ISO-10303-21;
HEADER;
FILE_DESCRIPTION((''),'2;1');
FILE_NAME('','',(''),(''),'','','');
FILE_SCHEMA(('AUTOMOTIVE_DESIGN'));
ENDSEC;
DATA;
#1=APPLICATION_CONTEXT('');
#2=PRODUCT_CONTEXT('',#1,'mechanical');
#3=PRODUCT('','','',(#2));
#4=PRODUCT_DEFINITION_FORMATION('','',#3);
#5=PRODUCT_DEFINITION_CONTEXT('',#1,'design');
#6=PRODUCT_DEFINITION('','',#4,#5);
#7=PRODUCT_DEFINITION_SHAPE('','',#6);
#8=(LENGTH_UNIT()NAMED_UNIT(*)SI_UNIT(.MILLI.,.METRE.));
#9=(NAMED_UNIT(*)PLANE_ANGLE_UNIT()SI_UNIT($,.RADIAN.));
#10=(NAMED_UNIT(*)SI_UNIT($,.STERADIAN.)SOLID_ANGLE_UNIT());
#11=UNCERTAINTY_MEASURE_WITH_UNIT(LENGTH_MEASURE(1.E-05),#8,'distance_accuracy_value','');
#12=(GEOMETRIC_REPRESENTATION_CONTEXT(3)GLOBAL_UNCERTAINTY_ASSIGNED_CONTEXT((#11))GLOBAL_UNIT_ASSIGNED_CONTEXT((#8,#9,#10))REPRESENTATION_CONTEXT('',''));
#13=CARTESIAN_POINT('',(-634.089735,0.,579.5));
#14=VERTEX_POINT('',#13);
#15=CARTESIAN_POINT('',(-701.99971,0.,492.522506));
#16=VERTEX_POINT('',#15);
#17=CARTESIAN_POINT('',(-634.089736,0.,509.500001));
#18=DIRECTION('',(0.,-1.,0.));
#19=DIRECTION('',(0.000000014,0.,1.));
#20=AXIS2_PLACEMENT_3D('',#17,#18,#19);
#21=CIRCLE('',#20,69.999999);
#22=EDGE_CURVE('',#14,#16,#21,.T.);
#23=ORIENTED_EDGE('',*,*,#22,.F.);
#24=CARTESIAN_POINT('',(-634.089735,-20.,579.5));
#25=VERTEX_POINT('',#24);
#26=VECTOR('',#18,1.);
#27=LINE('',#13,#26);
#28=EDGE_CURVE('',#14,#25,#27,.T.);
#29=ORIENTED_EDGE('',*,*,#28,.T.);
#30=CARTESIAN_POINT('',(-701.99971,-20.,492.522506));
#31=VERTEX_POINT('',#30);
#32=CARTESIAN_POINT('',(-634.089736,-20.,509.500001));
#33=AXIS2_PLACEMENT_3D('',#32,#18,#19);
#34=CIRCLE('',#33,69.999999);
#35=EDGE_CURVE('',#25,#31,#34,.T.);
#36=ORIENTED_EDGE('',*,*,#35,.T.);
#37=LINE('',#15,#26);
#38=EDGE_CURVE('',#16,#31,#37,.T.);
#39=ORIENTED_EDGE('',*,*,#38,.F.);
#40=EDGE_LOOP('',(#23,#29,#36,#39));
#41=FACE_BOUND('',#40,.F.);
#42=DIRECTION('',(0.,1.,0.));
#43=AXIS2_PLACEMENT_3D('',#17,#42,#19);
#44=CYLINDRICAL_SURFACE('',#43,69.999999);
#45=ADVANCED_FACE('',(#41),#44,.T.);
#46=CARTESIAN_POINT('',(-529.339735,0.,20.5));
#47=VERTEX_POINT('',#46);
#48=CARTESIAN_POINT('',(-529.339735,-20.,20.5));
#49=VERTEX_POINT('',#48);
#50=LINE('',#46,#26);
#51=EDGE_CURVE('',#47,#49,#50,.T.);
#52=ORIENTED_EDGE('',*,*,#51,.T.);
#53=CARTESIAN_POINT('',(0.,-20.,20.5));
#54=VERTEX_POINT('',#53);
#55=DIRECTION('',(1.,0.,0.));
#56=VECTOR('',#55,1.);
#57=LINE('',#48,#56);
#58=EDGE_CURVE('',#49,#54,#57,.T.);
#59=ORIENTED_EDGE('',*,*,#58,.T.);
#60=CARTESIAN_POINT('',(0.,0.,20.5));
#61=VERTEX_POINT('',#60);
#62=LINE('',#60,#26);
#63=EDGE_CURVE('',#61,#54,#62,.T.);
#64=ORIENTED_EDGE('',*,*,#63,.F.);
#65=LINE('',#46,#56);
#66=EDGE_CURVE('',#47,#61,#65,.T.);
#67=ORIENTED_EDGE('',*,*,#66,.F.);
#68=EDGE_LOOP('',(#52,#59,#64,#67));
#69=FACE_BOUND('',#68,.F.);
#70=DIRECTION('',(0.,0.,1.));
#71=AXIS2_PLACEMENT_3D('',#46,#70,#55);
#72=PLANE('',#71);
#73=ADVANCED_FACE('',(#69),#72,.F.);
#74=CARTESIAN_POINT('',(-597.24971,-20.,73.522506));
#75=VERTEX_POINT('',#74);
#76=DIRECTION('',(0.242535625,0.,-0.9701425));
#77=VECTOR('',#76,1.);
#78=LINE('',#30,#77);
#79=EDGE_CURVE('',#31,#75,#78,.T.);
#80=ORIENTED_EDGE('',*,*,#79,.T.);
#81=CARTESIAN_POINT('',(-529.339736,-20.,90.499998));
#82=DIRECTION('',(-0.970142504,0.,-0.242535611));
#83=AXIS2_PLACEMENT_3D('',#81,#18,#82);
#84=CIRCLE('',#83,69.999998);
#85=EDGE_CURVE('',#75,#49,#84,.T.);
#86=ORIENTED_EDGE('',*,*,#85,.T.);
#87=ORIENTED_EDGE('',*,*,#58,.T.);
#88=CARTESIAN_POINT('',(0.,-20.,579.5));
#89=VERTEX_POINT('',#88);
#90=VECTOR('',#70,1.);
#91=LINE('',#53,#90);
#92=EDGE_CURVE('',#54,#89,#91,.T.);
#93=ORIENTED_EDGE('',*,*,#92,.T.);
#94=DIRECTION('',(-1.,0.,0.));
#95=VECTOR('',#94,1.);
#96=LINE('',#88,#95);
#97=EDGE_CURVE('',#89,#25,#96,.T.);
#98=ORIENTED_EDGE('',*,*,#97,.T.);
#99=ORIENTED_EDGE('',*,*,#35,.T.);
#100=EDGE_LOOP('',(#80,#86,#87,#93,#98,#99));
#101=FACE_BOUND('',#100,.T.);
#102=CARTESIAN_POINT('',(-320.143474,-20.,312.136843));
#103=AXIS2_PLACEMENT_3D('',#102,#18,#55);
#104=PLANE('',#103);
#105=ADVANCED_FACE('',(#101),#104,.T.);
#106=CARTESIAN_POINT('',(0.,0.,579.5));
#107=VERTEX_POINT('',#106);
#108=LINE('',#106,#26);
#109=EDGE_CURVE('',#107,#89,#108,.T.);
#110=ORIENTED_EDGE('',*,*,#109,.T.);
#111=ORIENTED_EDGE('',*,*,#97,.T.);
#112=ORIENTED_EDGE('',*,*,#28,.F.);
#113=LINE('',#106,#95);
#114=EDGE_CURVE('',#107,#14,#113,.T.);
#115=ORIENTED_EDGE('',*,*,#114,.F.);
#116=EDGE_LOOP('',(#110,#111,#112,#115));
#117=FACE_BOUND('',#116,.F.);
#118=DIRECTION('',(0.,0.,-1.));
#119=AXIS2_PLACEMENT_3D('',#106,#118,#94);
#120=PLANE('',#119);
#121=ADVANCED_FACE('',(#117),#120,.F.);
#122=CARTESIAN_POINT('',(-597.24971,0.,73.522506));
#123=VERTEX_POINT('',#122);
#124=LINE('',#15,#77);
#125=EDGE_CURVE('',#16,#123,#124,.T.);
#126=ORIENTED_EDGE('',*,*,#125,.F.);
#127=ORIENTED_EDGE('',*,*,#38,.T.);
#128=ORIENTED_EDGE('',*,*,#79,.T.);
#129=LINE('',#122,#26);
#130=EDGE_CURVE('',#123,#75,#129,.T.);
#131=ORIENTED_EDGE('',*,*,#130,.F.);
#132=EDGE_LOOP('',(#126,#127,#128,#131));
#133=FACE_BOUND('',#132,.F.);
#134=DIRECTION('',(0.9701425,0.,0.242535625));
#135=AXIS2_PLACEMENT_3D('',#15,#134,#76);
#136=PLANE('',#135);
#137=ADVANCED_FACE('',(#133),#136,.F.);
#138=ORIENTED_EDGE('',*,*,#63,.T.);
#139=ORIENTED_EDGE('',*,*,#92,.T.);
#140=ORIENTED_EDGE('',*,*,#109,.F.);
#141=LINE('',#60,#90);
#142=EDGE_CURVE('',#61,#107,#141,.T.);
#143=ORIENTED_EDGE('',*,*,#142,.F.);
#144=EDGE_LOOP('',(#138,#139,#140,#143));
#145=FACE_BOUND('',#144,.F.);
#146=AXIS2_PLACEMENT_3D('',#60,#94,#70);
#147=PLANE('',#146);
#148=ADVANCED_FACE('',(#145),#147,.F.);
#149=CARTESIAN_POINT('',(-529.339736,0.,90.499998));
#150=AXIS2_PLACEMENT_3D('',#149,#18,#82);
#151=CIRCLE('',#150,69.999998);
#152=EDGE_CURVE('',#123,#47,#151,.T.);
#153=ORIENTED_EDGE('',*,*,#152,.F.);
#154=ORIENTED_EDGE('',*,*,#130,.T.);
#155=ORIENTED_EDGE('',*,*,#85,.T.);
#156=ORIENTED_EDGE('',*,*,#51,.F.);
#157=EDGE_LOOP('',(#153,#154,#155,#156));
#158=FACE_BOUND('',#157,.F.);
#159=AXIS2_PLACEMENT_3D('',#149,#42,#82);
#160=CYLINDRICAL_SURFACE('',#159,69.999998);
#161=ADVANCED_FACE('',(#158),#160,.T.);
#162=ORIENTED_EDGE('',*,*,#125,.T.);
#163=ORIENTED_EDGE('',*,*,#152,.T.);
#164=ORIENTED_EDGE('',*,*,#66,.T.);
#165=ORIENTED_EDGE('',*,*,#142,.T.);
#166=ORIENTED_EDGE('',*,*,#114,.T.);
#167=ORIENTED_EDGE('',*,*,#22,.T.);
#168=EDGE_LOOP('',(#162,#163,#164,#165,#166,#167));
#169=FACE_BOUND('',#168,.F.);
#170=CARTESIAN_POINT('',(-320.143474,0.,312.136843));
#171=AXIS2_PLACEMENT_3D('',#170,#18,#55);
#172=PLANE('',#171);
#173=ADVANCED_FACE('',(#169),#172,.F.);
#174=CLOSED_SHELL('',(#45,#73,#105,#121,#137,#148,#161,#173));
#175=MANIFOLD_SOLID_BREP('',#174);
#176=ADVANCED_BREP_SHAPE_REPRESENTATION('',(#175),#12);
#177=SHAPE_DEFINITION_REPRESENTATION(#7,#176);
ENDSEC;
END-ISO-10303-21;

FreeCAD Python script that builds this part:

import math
import FreeCAD as App
import Part
import Sketcher

doc = App.newDocument("Part")
params = doc.addObject("Spreadsheet::Sheet", "Params")
for row, (alias, value) in enumerate([
    ("sketch1_radius", "69.999999 mm"),
    ("sketch1_height", "559 mm"),
    ("pad1_length", "20 mm"),
], start=1):
    params.set(f"A{row}", alias)
    params.set(f"B{row}", "=" + value)
    params.setAlias(f"B{row}", alias)

body = doc.addObject("PartDesign::Body", "Body")

sketch1 = doc.addObject("Sketcher::SketchObject", "Sketch")
body.addObject(sketch1)
sketch1.AttachmentSupport = (doc.XZ_Plane, [""])
sketch1.MapMode = "FlatFace"
sketch1.addGeometry([
    Part.LineSegment(App.Vector(0, 580, 0), App.Vector(-634, 580, 0)),
    Part.ArcOfCircle(Part.Circle(App.Vector(-634, 510, 0), App.Vector(0, 0, 1), 70), math.radians(90), math.radians(194)),
    Part.LineSegment(App.Vector(-702, 493, 0), App.Vector(-597, 74, 0)),
    Part.ArcOfCircle(Part.Circle(App.Vector(-529, 90, 0), App.Vector(0, 0, 1), 70), math.radians(-166), math.radians(-90)),
    Part.LineSegment(App.Vector(-529, 20, 0), App.Vector(0, 20, 0)),
    Part.LineSegment(App.Vector(0, 20, 0), App.Vector(0, 580, 0)),
], False)
sketch1.addConstraint([
    Sketcher.Constraint("Tangent", 0, 2, 1, 1),
    Sketcher.Constraint("Tangent", 1, 2, 2, 1),
    Sketcher.Constraint("Tangent", 2, 2, 3, 1),
    Sketcher.Constraint("Tangent", 3, 2, 4, 1),
    Sketcher.Constraint("Coincident", 4, 2, 5, 1),
    Sketcher.Constraint("Coincident", 5, 2, 0, 1),
    Sketcher.Constraint("Horizontal", 0),
    Sketcher.Constraint("Horizontal", 4),
    Sketcher.Constraint("Vertical", 5),
    Sketcher.Constraint("Equal", 1, 3),
    Sketcher.Constraint("PointOnObject", 4, 2, -2),
    Sketcher.Constraint("Radius", 1, 69.999999),
    Sketcher.Constraint("DistanceY", 5, 1, 5, 2, 559.0),
    Sketcher.Constraint("DistanceY", -1, 1, 1, 3, 509.500001),
    Sketcher.Constraint("DistanceX", 1, 3, 3, 3, 104.75),
    Sketcher.Constraint("DistanceX", 0, 2, 0, 1, 634.089735),
])
sketch1.setExpression("Constraints[11]", "Params.sketch1_radius")
sketch1.setExpression("Constraints[12]", "Params.sketch1_height")
pad1 = doc.addObject("PartDesign::Pad", "Pad")
body.addObject(pad1)
pad1.Profile = sketch1
pad1.setExpression("Length", "Params.pad1_length")

doc.recompute()
